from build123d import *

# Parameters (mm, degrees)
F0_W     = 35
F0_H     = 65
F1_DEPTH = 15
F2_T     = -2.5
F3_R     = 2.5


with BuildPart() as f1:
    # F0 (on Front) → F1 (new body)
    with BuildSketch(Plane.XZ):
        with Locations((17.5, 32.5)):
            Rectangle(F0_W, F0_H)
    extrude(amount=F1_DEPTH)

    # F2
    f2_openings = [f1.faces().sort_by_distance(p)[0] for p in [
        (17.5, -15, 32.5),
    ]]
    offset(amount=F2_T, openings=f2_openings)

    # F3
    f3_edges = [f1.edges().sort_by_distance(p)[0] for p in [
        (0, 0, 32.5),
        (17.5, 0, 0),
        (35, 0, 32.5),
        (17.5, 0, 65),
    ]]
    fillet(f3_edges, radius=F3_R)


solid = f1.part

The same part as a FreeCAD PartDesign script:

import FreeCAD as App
import Part
import Sketcher


def edges_at(feature, points):
    """Names of the edges that pass closest to the given points."""
    edges = feature.Shape.Edges
    near = lambda p: min(range(len(edges)), key=lambda i: edges[i].distToShape(Part.Vertex(*p))[0])
    return sorted({f"Edge{near(p) + 1}" for p in points})


def faces_at(feature, points):
    """Names of the faces that lie closest to the given points."""
    faces = feature.Shape.Faces
    near = lambda p: min(range(len(faces)), key=lambda i: faces[i].distToShape(Part.Vertex(*p))[0])
    return sorted({f"Face{near(p) + 1}" for p in points})


def add_polygon(sketch, points):
    """Adds a closed chain of lines whose ends are joined by coincident constraints."""
    first, n = sketch.GeometryCount, len(points)
    for a, b in zip(points, points[1:] + points[:1]):
        sketch.addGeometry(Part.LineSegment(App.Vector(*a, 0), App.Vector(*b, 0)), False)
    for i in range(n):
        sketch.addConstraint(Sketcher.Constraint("Coincident", first + i, 2, first + (i + 1) % n, 1))

doc = App.newDocument("Part")
body = doc.addObject("PartDesign::Body", "Body")

sketch1 = body.newObject("Sketcher::SketchObject", "Sketch")
sketch1.AttachmentSupport = (doc.getObject("XZ_Plane"), [""])
sketch1.MapMode = "FlatFace"
add_polygon(sketch1, [(0, 65), (0, 0), (35, 0), (35, 65)])
sketch1.addConstraint([
    Sketcher.Constraint("Vertical", 0),
    Sketcher.Constraint("Horizontal", 1),
    Sketcher.Constraint("Vertical", 2),
    Sketcher.Constraint("Horizontal", 3),
    Sketcher.Constraint("Coincident", 0, 2, -1, 1),
    Sketcher.Constraint("DistanceX", 1, 1, 1, 2, 35.0),
    Sketcher.Constraint("DistanceY", 0, 2, 0, 1, 65.0),
])
pad1 = body.newObject("PartDesign::Pad", "Pad")
pad1.Profile = sketch1
pad1.Length = 15
doc.recompute()

thickness = body.newObject("PartDesign::Thickness", "Thickness")
thickness.Base = (pad1, faces_at(pad1, [(17.5, -15, 32.5)]))
thickness.Value = 2.5
thickness.Reversed = True
thickness.Join = "Arc"
doc.recompute()

fillet = body.newObject("PartDesign::Fillet", "Fillet")
fillet.Base = (thickness, edges_at(thickness, [
    (0, 0, 32.5),
    (17.5, 0, 0),
    (35, 0, 32.5),
    (17.5, 0, 65),
]))
fillet.Radius = 2.5

doc.recompute()
